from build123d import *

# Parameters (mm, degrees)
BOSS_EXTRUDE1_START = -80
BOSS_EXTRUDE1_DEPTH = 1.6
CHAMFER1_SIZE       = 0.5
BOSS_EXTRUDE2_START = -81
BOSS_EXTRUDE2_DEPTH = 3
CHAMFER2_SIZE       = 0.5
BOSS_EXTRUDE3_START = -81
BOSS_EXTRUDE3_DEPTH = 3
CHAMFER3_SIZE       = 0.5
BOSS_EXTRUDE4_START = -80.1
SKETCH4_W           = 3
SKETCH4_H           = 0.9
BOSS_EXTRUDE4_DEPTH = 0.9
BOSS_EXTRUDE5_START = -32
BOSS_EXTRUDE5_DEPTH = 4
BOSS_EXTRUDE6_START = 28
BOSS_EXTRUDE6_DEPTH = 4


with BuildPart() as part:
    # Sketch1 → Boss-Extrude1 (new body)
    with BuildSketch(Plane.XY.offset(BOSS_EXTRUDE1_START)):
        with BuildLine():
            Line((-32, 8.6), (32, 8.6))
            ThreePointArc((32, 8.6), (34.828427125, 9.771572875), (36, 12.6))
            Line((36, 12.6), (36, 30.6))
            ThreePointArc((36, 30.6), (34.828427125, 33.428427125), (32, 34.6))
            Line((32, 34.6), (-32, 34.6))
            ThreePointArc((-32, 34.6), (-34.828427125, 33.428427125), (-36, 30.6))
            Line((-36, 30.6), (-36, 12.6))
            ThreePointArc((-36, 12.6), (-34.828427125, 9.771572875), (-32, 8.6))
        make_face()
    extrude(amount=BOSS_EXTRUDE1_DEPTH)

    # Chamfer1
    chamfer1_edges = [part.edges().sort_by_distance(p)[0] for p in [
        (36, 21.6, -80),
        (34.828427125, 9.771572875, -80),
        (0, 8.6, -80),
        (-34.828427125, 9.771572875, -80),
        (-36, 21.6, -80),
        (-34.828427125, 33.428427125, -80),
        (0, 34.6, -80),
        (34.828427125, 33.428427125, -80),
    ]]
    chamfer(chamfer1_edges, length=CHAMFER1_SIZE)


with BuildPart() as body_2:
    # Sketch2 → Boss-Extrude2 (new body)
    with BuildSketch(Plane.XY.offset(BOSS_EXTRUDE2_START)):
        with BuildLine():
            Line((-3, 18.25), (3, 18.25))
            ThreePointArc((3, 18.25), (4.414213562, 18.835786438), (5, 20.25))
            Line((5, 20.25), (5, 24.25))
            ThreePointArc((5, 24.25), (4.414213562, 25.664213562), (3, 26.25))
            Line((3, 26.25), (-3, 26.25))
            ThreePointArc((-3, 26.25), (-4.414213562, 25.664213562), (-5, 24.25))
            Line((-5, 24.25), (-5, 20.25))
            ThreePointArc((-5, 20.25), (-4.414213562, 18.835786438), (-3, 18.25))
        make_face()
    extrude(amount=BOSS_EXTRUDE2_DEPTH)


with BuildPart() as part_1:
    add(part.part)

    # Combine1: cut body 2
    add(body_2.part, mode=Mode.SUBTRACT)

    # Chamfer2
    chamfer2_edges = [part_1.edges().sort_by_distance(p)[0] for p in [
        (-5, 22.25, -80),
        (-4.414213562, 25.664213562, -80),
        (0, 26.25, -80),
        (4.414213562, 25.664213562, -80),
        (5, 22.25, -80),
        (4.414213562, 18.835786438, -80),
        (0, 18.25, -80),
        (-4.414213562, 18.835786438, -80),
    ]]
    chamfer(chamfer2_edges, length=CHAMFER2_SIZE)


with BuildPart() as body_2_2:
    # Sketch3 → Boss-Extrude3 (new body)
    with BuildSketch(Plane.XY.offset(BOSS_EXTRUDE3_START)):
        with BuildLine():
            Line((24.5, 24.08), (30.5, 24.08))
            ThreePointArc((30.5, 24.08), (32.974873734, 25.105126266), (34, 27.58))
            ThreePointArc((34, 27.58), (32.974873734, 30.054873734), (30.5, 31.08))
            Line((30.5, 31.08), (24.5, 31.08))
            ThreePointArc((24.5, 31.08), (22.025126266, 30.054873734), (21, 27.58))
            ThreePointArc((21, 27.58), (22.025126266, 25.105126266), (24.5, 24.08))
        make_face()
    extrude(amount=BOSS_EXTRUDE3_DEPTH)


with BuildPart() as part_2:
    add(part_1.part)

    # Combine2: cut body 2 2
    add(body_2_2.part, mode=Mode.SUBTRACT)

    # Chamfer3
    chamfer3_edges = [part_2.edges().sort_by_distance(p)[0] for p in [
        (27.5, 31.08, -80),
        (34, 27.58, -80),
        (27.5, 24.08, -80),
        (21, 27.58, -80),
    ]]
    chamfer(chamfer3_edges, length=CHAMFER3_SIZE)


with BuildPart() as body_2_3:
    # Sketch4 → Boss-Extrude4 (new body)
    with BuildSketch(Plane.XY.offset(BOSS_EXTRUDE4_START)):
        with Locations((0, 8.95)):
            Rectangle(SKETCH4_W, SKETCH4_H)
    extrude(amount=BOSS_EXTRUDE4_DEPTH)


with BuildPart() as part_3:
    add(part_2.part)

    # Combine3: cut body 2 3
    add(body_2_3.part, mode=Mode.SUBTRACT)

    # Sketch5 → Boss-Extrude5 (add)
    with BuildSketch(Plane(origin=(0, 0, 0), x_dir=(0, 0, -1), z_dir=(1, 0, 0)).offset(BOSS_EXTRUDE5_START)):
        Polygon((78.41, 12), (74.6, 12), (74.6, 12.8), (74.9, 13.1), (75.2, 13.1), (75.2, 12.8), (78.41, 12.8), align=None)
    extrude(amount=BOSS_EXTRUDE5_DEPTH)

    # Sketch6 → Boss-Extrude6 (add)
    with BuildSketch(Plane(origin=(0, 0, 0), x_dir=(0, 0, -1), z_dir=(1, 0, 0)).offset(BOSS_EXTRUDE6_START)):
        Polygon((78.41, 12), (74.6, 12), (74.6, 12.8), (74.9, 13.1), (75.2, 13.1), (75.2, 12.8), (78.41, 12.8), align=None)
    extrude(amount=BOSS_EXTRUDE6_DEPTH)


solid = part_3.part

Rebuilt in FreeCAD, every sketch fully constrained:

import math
import FreeCAD as App
import Part
import Sketcher
Q = App.Units.Quantity


def edges_at(feature, points):
    """Names of the edges that pass closest to the given points."""
    edges = feature.Shape.Edges
    near = lambda p: min(range(len(edges)), key=lambda i: edges[i].distToShape(Part.Vertex(*p))[0])
    return sorted({f"Edge{near(p) + 1}" for p in points})


def add_polygon(sketch, points):
    """Adds a closed chain of lines whose ends are joined by coincident constraints."""
    first, n = sketch.GeometryCount, len(points)
    for a, b in zip(points, points[1:] + points[:1]):
        sketch.addGeometry(Part.LineSegment(App.Vector(*a, 0), App.Vector(*b, 0)), False)
    for i in range(n):
        sketch.addConstraint(Sketcher.Constraint("Coincident", first + i, 2, first + (i + 1) % n, 1))

doc = App.newDocument("Part")
params = doc.addObject("Spreadsheet::Sheet", "Params")
for row, (alias, value) in enumerate([
    ("sketch1_radius", "4 mm"),
    ("sketch1_width", "64 mm"),
    ("sketch1_height", "18 mm"),
    ("pad1_length", "1.6 mm"),
    ("chamfer_size", "0.5 mm"),
    ("sketch2_radius", "2 mm"),
    ("sketch2_width", "6 mm"),
    ("sketch2_height", "4 mm"),
    ("pad2_length", "3 mm"),
    ("chamfer2_size", "0.5 mm"),
    ("sketch3_radius", "3.5 mm"),
    ("sketch3_width", "6 mm"),
    ("pad3_length", "3 mm"),
    ("chamfer3_size", "0.5 mm"),
    ("sketch4_width", "3 mm"),
    ("sketch4_height", "0.9 mm"),
    ("pad4_length", "0.9 mm"),
    ("sketch5_width", "0.8 mm"),
    ("sketch5_width2", "0.3 mm"),
    ("sketch5_height", "3.81 mm"),
    ("pad5_length", "4 mm"),
    ("sketch6_width", "0.8 mm"),
    ("sketch6_width2", "0.3 mm"),
    ("sketch6_height", "3.81 mm"),
    ("pad6_length", "4 mm"),
], start=1):
    params.set(f"A{row}", alias)
    params.set(f"B{row}", "=" + value)
    params.setAlias(f"B{row}", alias)

body = doc.addObject("PartDesign::Body", "Body")

sketch1 = body.newObject("Sketcher::SketchObject", "Sketch")
sketch1.AttachmentSupport = (doc.getObject("XY_Plane"), [""])
sketch1.MapMode = "FlatFace"
sketch1.AttachmentOffset = App.Placement(App.Vector(0, 0, -80), App.Rotation())
sketch1.addGeometry([
    Part.LineSegment(App.Vector(-32, 8.6, 0), App.Vector(32, 8.6, 0)),
    Part.ArcOfCircle(Part.Circle(App.Vector(32, 12.6, 0), App.Vector(0, 0, 1), 4), math.radians(-90), math.radians(0)),
    Part.LineSegment(App.Vector(36, 12.6, 0), App.Vector(36, 30.6, 0)),
    Part.ArcOfCircle(Part.Circle(App.Vector(32, 30.6, 0), App.Vector(0, 0, 1), 4), math.radians(0), math.radians(90)),
    Part.LineSegment(App.Vector(32, 34.6, 0), App.Vector(-32, 34.6, 0)),
    Part.ArcOfCircle(Part.Circle(App.Vector(-32, 30.6, 0), App.Vector(0, 0, 1), 4), math.radians(90), math.radians(180)),
    Part.LineSegment(App.Vector(-36, 30.6, 0), App.Vector(-36, 12.6, 0)),
    Part.ArcOfCircle(Part.Circle(App.Vector(-32, 12.6, 0), App.Vector(0, 0, 1), 4), math.radians(180), math.radians(270)),
], False)
sketch1.addConstraint([
    Sketcher.Constraint("Tangent", 0, 2, 1, 1),
    Sketcher.Constraint("Tangent", 1, 2, 2, 1),
    Sketcher.Constraint("Tangent", 2, 2, 3, 1),
    Sketcher.Constraint("Tangent", 3, 2, 4, 1),
    Sketcher.Constraint("Tangent", 4, 2, 5, 1),
    Sketcher.Constraint("Tangent", 5, 2, 6, 1),
    Sketcher.Constraint("Tangent", 6, 2, 7, 1),
    Sketcher.Constraint("Tangent", 7, 2, 0, 1),
    Sketcher.Constraint("Horizontal", 0),
    Sketcher.Constraint("Vertical", 2),
    Sketcher.Constraint("Horizontal", 4),
    Sketcher.Constraint("Vertical", 6),
    Sketcher.Constraint("Equal", 1, 3),
    Sketcher.Constraint("Equal", 3, 5),
    Sketcher.Constraint("Equal", 5, 7),
    Sketcher.Constraint("Radius", 1, 4.0),
    Sketcher.Constraint("DistanceX", 0, 1, 0, 2, 64.0),
    Sketcher.Constraint("DistanceY", 2, 1, 2, 2, 18.0),
    Sketcher.Constraint("DistanceX", -1, 1, 1, 3, 32.0),
    Sketcher.Constraint("DistanceY", -1, 1, 1, 3, 12.6),
])
sketch1.setExpression("Constraints[15]", "Params.sketch1_radius")
sketch1.setExpression("Constraints[16]", "Params.sketch1_width")
sketch1.setExpression("Constraints[17]", "Params.sketch1_height")
pad1 = body.newObject("PartDesign::Pad", "Pad")
pad1.Profile = sketch1
pad1.setExpression("Length", "Params.pad1_length")
doc.recompute()

chamfer = body.newObject("PartDesign::Chamfer", "Chamfer")
chamfer.Base = (pad1, edges_at(pad1, [
    (36, 21.6, -80),
    (34.828, 9.772, -80),
    (0, 8.6, -80),
    (-34.828, 9.772, -80),
    (-36, 21.6, -80),
    (-34.828, 33.428, -80),
    (0, 34.6, -80),
    (34.828, 33.428, -80),
]))
chamfer.setExpression("Size", "Params.chamfer_size")
body2 = doc.addObject("PartDesign::Body", "Body001")

sketch2 = body2.newObject("Sketcher::SketchObject", "Sketch001")
sketch2.AttachmentSupport = (doc.getObject("XY_Plane001"), [""])
sketch2.MapMode = "FlatFace"
sketch2.AttachmentOffset = App.Placement(App.Vector(0, 0, -81), App.Rotation())
sketch2.addGeometry([
    Part.LineSegment(App.Vector(-3, 18.2, 0), App.Vector(3, 18.2, 0)),
    Part.ArcOfCircle(Part.Circle(App.Vector(3, 20.3, 0), App.Vector(0, 0, 1), 2), math.radians(-90), math.radians(0)),
    Part.LineSegment(App.Vector(5, 20.2, 0), App.Vector(5, 24.2, 0)),
    Part.ArcOfCircle(Part.Circle(App.Vector(3, 24.2, 0), App.Vector(0, 0, 1), 2), math.radians(0), math.radians(90)),
    Part.LineSegment(App.Vector(3, 26.2, 0), App.Vector(-3, 26.2, 0)),
    Part.ArcOfCircle(Part.Circle(App.Vector(-3, 24.2, 0), App.Vector(0, 0, 1), 2), math.radians(90), math.radians(180)),
    Part.LineSegment(App.Vector(-5, 24.2, 0), App.Vector(-5, 20.2, 0)),
    Part.ArcOfCircle(Part.Circle(App.Vector(-3, 20.3, 0), App.Vector(0, 0, 1), 2), math.radians(-180), math.radians(-90)),
], False)
sketch2.addConstraint([
    Sketcher.Constraint("Tangent", 0, 2, 1, 1),
    Sketcher.Constraint("Tangent", 1, 2, 2, 1),
    Sketcher.Constraint("Tangent", 2, 2, 3, 1),
    Sketcher.Constraint("Tangent", 3, 2, 4, 1),
    Sketcher.Constraint("Tangent", 4, 2, 5, 1),
    Sketcher.Constraint("Tangent", 5, 2, 6, 1),
    Sketcher.Constraint("Tangent", 6, 2, 7, 1),
    Sketcher.Constraint("Tangent", 7, 2, 0, 1),
    Sketcher.Constraint("Horizontal", 0),
    Sketcher.Constraint("Vertical", 2),
    Sketcher.Constraint("Horizontal", 4),
    Sketcher.Constraint("Vertical", 6),
    Sketcher.Constraint("Equal", 1, 3),
    Sketcher.Constraint("Equal", 3, 5),
    Sketcher.Constraint("Equal", 5, 7),
    Sketcher.Constraint("Radius", 1, 2.0),
    Sketcher.Constraint("DistanceX", 0, 1, 0, 2, 6.0),
    Sketcher.Constraint("DistanceY", 2, 1, 2, 2, 4.0),
    Sketcher.Constraint("DistanceX", -1, 1, 1, 3, 3.0),
    Sketcher.Constraint("DistanceY", -1, 1, 1, 3, 20.25),
])
sketch2.setExpression("Constraints[15]", "Params.sketch2_radius")
sketch2.setExpression("Constraints[16]", "Params.sketch2_width")
sketch2.setExpression("Constraints[17]", "Params.sketch2_height")
pad2 = body2.newObject("PartDesign::Pad", "Pad001")
pad2.Profile = sketch2
pad2.setExpression("Length", "Params.pad2_length")
doc.recompute()

boolean = body.newObject("PartDesign::Boolean", "Boolean")
boolean.Type = "Cut"
boolean.addObjects([body2])
doc.recompute()

chamfer2 = body.newObject("PartDesign::Chamfer", "Chamfer001")
chamfer2.Base = (boolean, edges_at(boolean, [
    (-5, 22.25, -80),
    (-4.414, 25.664, -80),
    (0, 26.25, -80),
    (4.414, 25.664, -80),
    (5, 22.25, -80),
    (4.414, 18.836, -80),
    (0, 18.25, -80),
    (-4.414, 18.836, -80),
]))
chamfer2.setExpression("Size", "Params.chamfer2_size")
body3 = doc.addObject("PartDesign::Body", "Body002")

sketch3 = body3.newObject("Sketcher::SketchObject", "Sketch002")
sketch3.AttachmentSupport = (doc.getObject("XY_Plane002"), [""])
sketch3.MapMode = "FlatFace"
sketch3.AttachmentOffset = App.Placement(App.Vector(0, 0, -81), App.Rotation())
sketch3.addGeometry([
    Part.LineSegment(App.Vector(24.5, 24.1, 0), App.Vector(30.5, 24.1, 0)),
    Part.ArcOfCircle(Part.Circle(App.Vector(30.5, 27.6, 0), App.Vector(0, 0, 1), 3.5), math.radians(-90), math.radians(0)),
    Part.ArcOfCircle(Part.Circle(App.Vector(30.5, 27.6, 0), App.Vector(0, 0, 1), 3.5), math.radians(0), math.radians(90)),
    Part.LineSegment(App.Vector(30.5, 31.1, 0), App.Vector(24.5, 31.1, 0)),
    Part.ArcOfCircle(Part.Circle(App.Vector(24.5, 27.6, 0), App.Vector(0, 0, 1), 3.5), math.radians(90), math.radians(180)),
    Part.ArcOfCircle(Part.Circle(App.Vector(24.5, 27.6, 0), App.Vector(0, 0, 1), 3.5), math.radians(-180), math.radians(-90)),
], False)
sketch3.addConstraint([
    Sketcher.Constraint("Tangent", 0, 2, 1, 1),
    Sketcher.Constraint("Tangent", 1, 2, 2, 1),
    Sketcher.Constraint("Tangent", 2, 2, 3, 1),
    Sketcher.Constraint("Tangent", 3, 2, 4, 1),
    Sketcher.Constraint("Tangent", 4, 2, 5, 1),
    Sketcher.Constraint("Tangent", 5, 2, 0, 1),
    Sketcher.Constraint("Horizontal", 0),
    Sketcher.Constraint("Horizontal", 3),
    Sketcher.Constraint("Equal", 1, 2),
    Sketcher.Constraint("Equal", 2, 4),
    Sketcher.Constraint("Horizontal", 5, 3, 1, 2),
    Sketcher.Constraint("Horizontal", 1, 2, 4, 2),
    Sketcher.Constraint("Radius", 1, 3.5),
    Sketcher.Constraint("DistanceX", 0, 1, 0, 2, 6.0),
    Sketcher.Constraint("DistanceX", -1, 1, 1, 2, 34.0),
    Sketcher.Constraint("DistanceY", -1, 1, 1, 3, 27.58),
])
sketch3.setExpression("Constraints[12]", "Params.sketch3_radius")
sketch3.setExpression("Constraints[13]", "Params.sketch3_width")
pad3 = body3.newObject("PartDesign::Pad", "Pad002")
pad3.Profile = sketch3
pad3.setExpression("Length", "Params.pad3_length")
doc.recompute()

boolean2 = body.newObject("PartDesign::Boolean", "Boolean001")
boolean2.Type = "Cut"
boolean2.addObjects([body3])
doc.recompute()

chamfer3 = body.newObject("PartDesign::Chamfer", "Chamfer002")
chamfer3.Base = (boolean2, edges_at(boolean2, [
    (27.5, 31.08, -80),
    (32.975, 25.105, -80),
    (27.5, 24.08, -80),
    (22.025, 30.055, -80),
]))
chamfer3.setExpression("Size", "Params.chamfer3_size")
body4 = doc.addObject("PartDesign::Body", "Body003")

sketch4 = body4.newObject("Sketcher::SketchObject", "Sketch003")
sketch4.AttachmentSupport = (doc.getObject("XY_Plane003"), [""])
sketch4.MapMode = "FlatFace"
sketch4.AttachmentOffset = App.Placement(App.Vector(0, 0, -80.1), App.Rotation())
add_polygon(sketch4, [(-1.5, 9.4), (-1.5, 8.5), (1.5, 8.5), (1.5, 9.4)])
sketch4.addConstraint([
    Sketcher.Constraint("Vertical", 0),
    Sketcher.Constraint("Horizontal", 1),
    Sketcher.Constraint("Vertical", 2),
    Sketcher.Constraint("Horizontal", 3),
    Sketcher.Constraint("DistanceX", 1, 1, 1, 2, 3.0),
    Sketcher.Constraint("DistanceY", 0, 2, 0, 1, 0.9),
    Sketcher.Constraint("DistanceX", 0, 2, -1, 1, 1.5),
    Sketcher.Constraint("DistanceY", -1, 1, 0, 2, 8.5),
])
sketch4.setExpression("Constraints[8]", "Params.sketch4_width")
sketch4.setExpression("Constraints[9]", "Params.sketch4_height")
pad4 = body4.newObject("PartDesign::Pad", "Pad003")
pad4.Profile = sketch4
pad4.setExpression("Length", "Params.pad4_length")
doc.recompute()

boolean3 = body.newObject("PartDesign::Boolean", "Boolean002")
boolean3.Type = "Cut"
boolean3.addObjects([body4])

sketch5 = body.newObject("Sketcher::SketchObject", "Sketch004")
sketch5.AttachmentSupport = (doc.getObject("YZ_Plane"), [""])
sketch5.MapMode = "FlatFace"
sketch5.AttachmentOffset = App.Placement(App.Vector(0, 0, -32), App.Rotation())
add_polygon(sketch5, [(12, -74.6), (12, -78.41), (12.8, -78.41), (12.8, -75.2), (13.1, -75.2), (13.1, -74.9), (12.8, -74.6)])
sketch5.addConstraint([
    Sketcher.Constraint("Vertical", 0),
    Sketcher.Constraint("Horizontal", 1),
    Sketcher.Constraint("Vertical", 2),
    Sketcher.Constraint("Horizontal", 3),
    Sketcher.Constraint("Vertical", 4),
    Sketcher.Constraint("Horizontal", 6),
    Sketcher.Constraint("Vertical", 2, 2, 5, 2),
    Sketcher.Constraint("Equal", 3, 4),
    Sketcher.Constraint("Angle", 5, Q("135 deg")),
    Sketcher.Constraint("DistanceX", 1, 1, 1, 2, 0.8),
    Sketcher.Constraint("DistanceX", 3, 1, 3, 2, 0.3),
    Sketcher.Constraint("DistanceX", -1, 1, 0, 2, 12.0),
    Sketcher.Constraint("DistanceY", 0, 2, 0, 1, 3.81),
    Sketcher.Constraint("DistanceY", 2, 2, -1, 1, 75.2),
])
sketch5.setExpression("Constraints[16]", "Params.sketch5_width")
sketch5.setExpression("Constraints[17]", "Params.sketch5_width2")
sketch5.setExpression("Constraints[19]", "Params.sketch5_height")
pad5 = body.newObject("PartDesign::Pad", "Pad004")
pad5.Profile = sketch5
pad5.setExpression("Length", "Params.pad5_length")

sketch6 = body.newObject("Sketcher::SketchObject", "Sketch005")
sketch6.AttachmentSupport = (doc.getObject("YZ_Plane"), [""])
sketch6.MapMode = "FlatFace"
sketch6.AttachmentOffset = App.Placement(App.Vector(0, 0, 28), App.Rotation())
add_polygon(sketch6, [(12, -74.6), (12, -78.41), (12.8, -78.41), (12.8, -75.2), (13.1, -75.2), (13.1, -74.9), (12.8, -74.6)])
sketch6.addConstraint([
    Sketcher.Constraint("Vertical", 0),
    Sketcher.Constraint("Horizontal", 1),
    Sketcher.Constraint("Vertical", 2),
    Sketcher.Constraint("Horizontal", 3),
    Sketcher.Constraint("Vertical", 4),
    Sketcher.Constraint("Horizontal", 6),
    Sketcher.Constraint("Vertical", 2, 2, 5, 2),
    Sketcher.Constraint("Equal", 3, 4),
    Sketcher.Constraint("Angle", 5, Q("135 deg")),
    Sketcher.Constraint("DistanceX", 1, 1, 1, 2, 0.8),
    Sketcher.Constraint("DistanceX", 3, 1, 3, 2, 0.3),
    Sketcher.Constraint("DistanceX", -1, 1, 0, 2, 12.0),
    Sketcher.Constraint("DistanceY", 0, 2, 0, 1, 3.81),
    Sketcher.Constraint("DistanceY", 2, 2, -1, 1, 75.2),
])
sketch6.setExpression("Constraints[16]", "Params.sketch6_width")
sketch6.setExpression("Constraints[17]", "Params.sketch6_width2")
sketch6.setExpression("Constraints[19]", "Params.sketch6_height")
pad6 = body.newObject("PartDesign::Pad", "Pad005")
pad6.Profile = sketch6
pad6.setExpression("Length", "Params.pad6_length")

doc.recompute()
